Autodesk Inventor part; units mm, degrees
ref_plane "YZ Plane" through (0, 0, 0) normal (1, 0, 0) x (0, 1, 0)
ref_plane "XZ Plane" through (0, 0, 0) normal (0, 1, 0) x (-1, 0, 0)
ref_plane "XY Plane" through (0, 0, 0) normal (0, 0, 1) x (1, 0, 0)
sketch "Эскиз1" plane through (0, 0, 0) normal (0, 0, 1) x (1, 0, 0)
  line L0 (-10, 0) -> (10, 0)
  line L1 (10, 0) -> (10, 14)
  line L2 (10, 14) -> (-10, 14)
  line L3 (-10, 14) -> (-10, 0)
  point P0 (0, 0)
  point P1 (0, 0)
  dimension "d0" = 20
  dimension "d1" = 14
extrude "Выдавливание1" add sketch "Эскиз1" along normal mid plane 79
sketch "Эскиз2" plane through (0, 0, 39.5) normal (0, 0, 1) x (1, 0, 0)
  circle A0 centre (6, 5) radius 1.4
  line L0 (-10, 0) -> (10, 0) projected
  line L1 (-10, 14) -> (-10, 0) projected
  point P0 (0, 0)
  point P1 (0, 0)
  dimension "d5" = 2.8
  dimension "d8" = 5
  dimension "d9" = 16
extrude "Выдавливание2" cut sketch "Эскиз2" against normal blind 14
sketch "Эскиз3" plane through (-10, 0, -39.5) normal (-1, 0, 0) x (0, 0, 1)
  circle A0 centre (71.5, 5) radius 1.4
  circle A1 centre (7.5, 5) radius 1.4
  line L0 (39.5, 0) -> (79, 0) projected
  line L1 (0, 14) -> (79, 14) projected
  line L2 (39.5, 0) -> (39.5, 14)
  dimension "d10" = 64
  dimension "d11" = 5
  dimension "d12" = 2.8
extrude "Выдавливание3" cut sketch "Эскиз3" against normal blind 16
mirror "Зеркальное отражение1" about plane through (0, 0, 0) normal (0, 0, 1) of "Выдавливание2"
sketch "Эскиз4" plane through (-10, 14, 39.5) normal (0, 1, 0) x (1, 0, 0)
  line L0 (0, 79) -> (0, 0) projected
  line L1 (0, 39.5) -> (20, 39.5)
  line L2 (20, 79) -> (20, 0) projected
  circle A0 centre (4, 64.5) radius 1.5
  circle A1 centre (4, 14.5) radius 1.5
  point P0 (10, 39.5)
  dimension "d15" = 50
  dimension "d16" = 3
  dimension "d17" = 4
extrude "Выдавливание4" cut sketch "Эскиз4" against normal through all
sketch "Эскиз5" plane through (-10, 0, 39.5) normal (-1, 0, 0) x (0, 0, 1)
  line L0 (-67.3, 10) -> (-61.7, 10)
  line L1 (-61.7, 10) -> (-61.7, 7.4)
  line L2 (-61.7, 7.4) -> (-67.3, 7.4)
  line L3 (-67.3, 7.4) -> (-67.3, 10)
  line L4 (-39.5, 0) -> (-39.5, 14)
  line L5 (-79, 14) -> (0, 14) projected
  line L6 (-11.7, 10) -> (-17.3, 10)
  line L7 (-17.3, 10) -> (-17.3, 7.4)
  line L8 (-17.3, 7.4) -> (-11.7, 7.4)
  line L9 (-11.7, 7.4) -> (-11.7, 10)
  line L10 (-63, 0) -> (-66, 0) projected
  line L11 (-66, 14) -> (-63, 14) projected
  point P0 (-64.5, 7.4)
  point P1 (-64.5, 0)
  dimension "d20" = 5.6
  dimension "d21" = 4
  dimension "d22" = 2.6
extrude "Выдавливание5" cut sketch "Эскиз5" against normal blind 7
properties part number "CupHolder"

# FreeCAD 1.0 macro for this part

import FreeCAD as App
import Part
import Sketcher
Q = App.Units.Quantity

doc = App.newDocument("Part")
body = doc.addObject("PartDesign::Body", "Body")

sketch1 = body.newObject("Sketcher::SketchObject", "Sketch")
sketch1.AttachmentSupport = (doc.getObject("XY_Plane"), [""])
sketch1.MapMode = "FlatFace"
sketch1.addGeometry(Part.LineSegment(App.Vector(-10, 14, 0), App.Vector(-10, 0, 0)), False)
sketch1.addGeometry(Part.LineSegment(App.Vector(-10, 0, 0), App.Vector(10, 0, 0)), False)
sketch1.addGeometry(Part.LineSegment(App.Vector(10, 0, 0), App.Vector(10, 14, 0)), False)
sketch1.addGeometry(Part.LineSegment(App.Vector(10, 14, 0), App.Vector(-10, 14, 0)), False)
sketch1.addConstraint(Sketcher.Constraint("Coincident", 0, 2, 1, 1))
sketch1.addConstraint(Sketcher.Constraint("Coincident", 1, 2, 2, 1))
sketch1.addConstraint(Sketcher.Constraint("Coincident", 2, 2, 3, 1))
sketch1.addConstraint(Sketcher.Constraint("Coincident", 3, 2, 0, 1))
sketch1.addConstraint(Sketcher.Constraint("Vertical", 0))
sketch1.addConstraint(Sketcher.Constraint("Horizontal", 1))
sketch1.addConstraint(Sketcher.Constraint("Vertical", 2))
sketch1.addConstraint(Sketcher.Constraint("Horizontal", 3))
sketch1.addConstraint(Sketcher.Constraint("Symmetric", 0, 2, 1, 2, -1, 1))
sketch1.addConstraint(Sketcher.Constraint("DistanceX", 1, 1, 1, 2, Q("20 mm")))
sketch1.addConstraint(Sketcher.Constraint("DistanceY", 0, 2, 0, 1, Q("14 mm")))
pad1 = body.newObject("PartDesign::Pad", "Pad")
pad1.Profile = sketch1
pad1.Length = 79
pad1.Midplane = True

sketch2 = body.newObject("Sketcher::SketchObject", "Sketch001")
sketch2.AttachmentSupport = (doc.getObject("XY_Plane"), [""])
sketch2.MapMode = "FlatFace"
sketch2.AttachmentOffset = App.Placement(App.Vector(0, 0, 39.5), App.Rotation())
sketch2.addGeometry(Part.Circle(App.Vector(6, 5, 0), App.Vector(0, 0, 1), 1.4), False)
sketch2.addConstraint(Sketcher.Constraint("Diameter", 0, Q("2.8 mm")))
sketch2.addConstraint(Sketcher.Constraint("DistanceY", -1, 1, 0, 3, Q("5 mm")))
sketch2.addConstraint(Sketcher.Constraint("DistanceX", -1, 1, 0, 3, Q("6 mm")))
pocket1 = body.newObject("PartDesign::Pocket", "Pocket")
pocket1.Profile = sketch2
pocket1.Length = 14

sketch3 = body.newObject("Sketcher::SketchObject", "Sketch002")
sketch3.AttachmentSupport = (doc.getObject("YZ_Plane"), [""])
sketch3.MapMode = "FlatFace"
sketch3.AttachmentOffset = App.Placement(App.Vector(0, 0, -10), App.Rotation())
sketch3.addGeometry(Part.Circle(App.Vector(5, 32, 0), App.Vector(0, 0, 1), 1.4), False)
sketch3.addGeometry(Part.Circle(App.Vector(5, -32, 0), App.Vector(0, 0, 1), 1.4), False)
sketch3.addConstraint(Sketcher.Constraint("Equal", 0, 1))
sketch3.addConstraint(Sketcher.Constraint("Symmetric", 0, 3, 1, 3, -1))
sketch3.addConstraint(Sketcher.Constraint("Diameter", 0, Q("2.8 mm")))
sketch3.addConstraint(Sketcher.Constraint("DistanceX", -1, 1, 0, 3, Q("5 mm")))
sketch3.addConstraint(Sketcher.Constraint("DistanceY", 1, 3, 0, 3, Q("64 mm")))
pocket2 = body.newObject("PartDesign::Pocket", "Pocket001")
pocket2.Profile = sketch3
pocket2.Length = 16
pocket2.Reversed = True
doc.recompute()

mirrored = body.newObject("PartDesign::Mirrored", "Mirrored")
mirrored.Originals = [pocket1]
mirrored.MirrorPlane = (doc.getObject("XY_Plane"), [""])
body.Tip = mirrored

sketch4 = body.newObject("Sketcher::SketchObject", "Sketch003")
sketch4.AttachmentSupport = (doc.getObject("XZ_Plane"), [""])
sketch4.MapMode = "FlatFace"
sketch4.AttachmentOffset = App.Placement(App.Vector(0, 0, -14), App.Rotation())
sketch4.addGeometry(Part.Circle(App.Vector(-6, -25, 0), App.Vector(0, 0, 1), 1.5), False)
sketch4.addGeometry(Part.Circle(App.Vector(-6, 25, 0), App.Vector(0, 0, 1), 1.5), False)
sketch4.addConstraint(Sketcher.Constraint("Equal", 0, 1))
sketch4.addConstraint(Sketcher.Constraint("Symmetric", 0, 3, 1, 3, -1))
sketch4.addConstraint(Sketcher.Constraint("Diameter", 0, Q("3 mm")))
sketch4.addConstraint(Sketcher.Constraint("DistanceY", 0, 3, 1, 3, Q("50 mm")))
sketch4.addConstraint(Sketcher.Constraint("DistanceX", 0, 3, -1, 1, Q("6 mm")))
pocket3 = body.newObject("PartDesign::Pocket", "Pocket002")
pocket3.Profile = sketch4
pocket3.Type = "ThroughAll"
pocket3.Reversed = True

sketch5 = body.newObject("Sketcher::SketchObject", "Sketch004")
sketch5.AttachmentSupport = (doc.getObject("YZ_Plane"), [""])
sketch5.MapMode = "FlatFace"
sketch5.AttachmentOffset = App.Placement(App.Vector(0, 0, -10), App.Rotation())
sketch5.addGeometry(Part.LineSegment(App.Vector(10, -22.2, 0), App.Vector(10, -27.8, 0)), False)
sketch5.addGeometry(Part.LineSegment(App.Vector(10, -27.8, 0), App.Vector(7.4, -27.8, 0)), False)
sketch5.addGeometry(Part.LineSegment(App.Vector(7.4, -27.8, 0), App.Vector(7.4, -22.2, 0)), False)
sketch5.addGeometry(Part.LineSegment(App.Vector(7.4, -22.2, 0), App.Vector(10, -22.2, 0)), False)
sketch5.addGeometry(Part.LineSegment(App.Vector(7.4, 27.8, 0), App.Vector(10, 27.8, 0)), False)
sketch5.addGeometry(Part.LineSegment(App.Vector(10, 27.8, 0), App.Vector(10, 22.2, 0)), False)
sketch5.addGeometry(Part.LineSegment(App.Vector(10, 22.2, 0), App.Vector(7.4, 22.2, 0)), False)
sketch5.addGeometry(Part.LineSegment(App.Vector(7.4, 22.2, 0), App.Vector(7.4, 27.8, 0)), False)
sketch5.addConstraint(Sketcher.Constraint("Coincident", 0, 2, 1, 1))
sketch5.addConstraint(Sketcher.Constraint("Coincident", 1, 2, 2, 1))
sketch5.addConstraint(Sketcher.Constraint("Coincident", 2, 2, 3, 1))
sketch5.addConstraint(Sketcher.Constraint("Coincident", 3, 2, 0, 1))
sketch5.addConstraint(Sketcher.Constraint("Coincident", 4, 2, 5, 1))
sketch5.addConstraint(Sketcher.Constraint("Coincident", 5, 2, 6, 1))
sketch5.addConstraint(Sketcher.Constraint("Coincident", 6, 2, 7, 1))
sketch5.addConstraint(Sketcher.Constraint("Coincident", 7, 2, 4, 1))
sketch5.addConstraint(Sketcher.Constraint("Vertical", 0))
sketch5.addConstraint(Sketcher.Constraint("Horizontal", 1))
sketch5.addConstraint(Sketcher.Constraint("Vertical", 2))
sketch5.addConstraint(Sketcher.Constraint("Horizontal", 3))
sketch5.addConstraint(Sketcher.Constraint("Horizontal", 4))
sketch5.addConstraint(Sketcher.Constraint("Vertical", 5))
sketch5.addConstraint(Sketcher.Constraint("Horizontal", 6))
sketch5.addConstraint(Sketcher.Constraint("Vertical", 7))
sketch5.addConstraint(Sketcher.Constraint("Symmetric", 0, 2, 4, 2, -1))
sketch5.addConstraint(Sketcher.Constraint("Symmetric", 2, 2, 6, 2, -1))
sketch5.addConstraint(Sketcher.Constraint("DistanceX", 1, 2, 1, 1, Q("2.6 mm")))
sketch5.addConstraint(Sketcher.Constraint("DistanceY", 0, 2, 0, 1, Q("5.6 mm")))
sketch5.addConstraint(Sketcher.Constraint("DistanceX", -1, 1, 0, 2, Q("10 mm")))
sketch5.addConstraint(Sketcher.Constraint("DistanceY", 3, 2, 4, 2, Q("50 mm")))
pocket4 = body.newObject("PartDesign::Pocket", "Pocket003")
pocket4.Profile = sketch5
pocket4.Length = 7
pocket4.Reversed = True

doc.recompute()
